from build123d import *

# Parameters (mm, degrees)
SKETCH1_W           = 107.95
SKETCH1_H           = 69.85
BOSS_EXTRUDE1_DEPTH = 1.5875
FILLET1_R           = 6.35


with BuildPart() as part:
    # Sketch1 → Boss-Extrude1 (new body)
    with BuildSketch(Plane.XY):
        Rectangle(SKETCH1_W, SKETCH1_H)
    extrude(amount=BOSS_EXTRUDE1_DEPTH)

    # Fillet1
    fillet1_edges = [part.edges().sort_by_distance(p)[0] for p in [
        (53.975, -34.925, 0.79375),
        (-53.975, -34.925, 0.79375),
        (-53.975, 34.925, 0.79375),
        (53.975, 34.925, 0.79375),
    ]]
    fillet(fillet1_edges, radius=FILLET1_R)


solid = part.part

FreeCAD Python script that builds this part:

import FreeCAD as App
import Part
import Sketcher
Q = App.Units.Quantity


def edges_at(feature, points):
    """Names of the edges that pass closest to the given points."""
    edges = feature.Shape.Edges
    near = lambda p: min(range(len(edges)), key=lambda i: edges[i].distToShape(Part.Vertex(*p))[0])
    return sorted({f"Edge{near(p) + 1}" for p in points})


def add_polygon(sketch, points):
    """Adds a closed chain of lines whose ends are joined by coincident constraints."""
    first, n = sketch.GeometryCount, len(points)
    for a, b in zip(points, points[1:] + points[:1]):
        sketch.addGeometry(Part.LineSegment(App.Vector(*a, 0), App.Vector(*b, 0)), False)
    for i in range(n):
        sketch.addConstraint(Sketcher.Constraint("Coincident", first + i, 2, first + (i + 1) % n, 1))

doc = App.newDocument("Part")
params = doc.addObject("Spreadsheet::Sheet", "Params")
for row, (alias, value) in enumerate([
    ("sketch1_width", "4.25 in"),
    ("sketch1_height", "2.75 in"),
    ("pad1_length", "0.0625 in"),
    ("fillet_radius", "0.25 in"),
], start=1):
    params.set(f"A{row}", alias)
    params.set(f"B{row}", "=" + value)
    params.setAlias(f"B{row}", alias)

body = doc.addObject("PartDesign::Body", "Body")

# Sketch on XY plane
sketch1 = body.newObject("Sketcher::SketchObject", "Sketch")
sketch1.AttachmentSupport = (doc.getObject("XY_Plane"), [""])
sketch1.MapMode = "FlatFace"
add_polygon(sketch1, [(-53.975, 34.925), (-53.975, -34.925), (53.975, -34.925), (53.975, 34.925)])  # lines 0-3
sketch1.addConstraint([
    Sketcher.Constraint("Vertical", 0),
    Sketcher.Constraint("Horizontal", 1),
    Sketcher.Constraint("Vertical", 2),
    Sketcher.Constraint("Horizontal", 3),
    Sketcher.Constraint("Symmetric", 0, 2, 2, 2, -1, 1),
    Sketcher.Constraint("DistanceX", 1, 1, 1, 2, Q("4.25 in")),
    Sketcher.Constraint("DistanceY", 0, 2, 0, 1, Q("2.75 in")),
])
sketch1.setExpression("Constraints[9]", "Params.sketch1_width")
sketch1.setExpression("Constraints[10]", "Params.sketch1_height")
pad1 = body.newObject("PartDesign::Pad", "Pad")
pad1.Profile = sketch1
pad1.setExpression("Length", "Params.pad1_length")
doc.recompute()

fillet = body.newObject("PartDesign::Fillet", "Fillet")
fillet.Base = (pad1, edges_at(pad1, [
    (53.975, -34.925, 0.794),
    (-53.975, -34.925, 0.794),
    (-53.975, 34.925, 0.794),
    (53.975, 34.925, 0.794),
]))
fillet.setExpression("Radius", "Params.fillet_radius")

doc.recompute()
